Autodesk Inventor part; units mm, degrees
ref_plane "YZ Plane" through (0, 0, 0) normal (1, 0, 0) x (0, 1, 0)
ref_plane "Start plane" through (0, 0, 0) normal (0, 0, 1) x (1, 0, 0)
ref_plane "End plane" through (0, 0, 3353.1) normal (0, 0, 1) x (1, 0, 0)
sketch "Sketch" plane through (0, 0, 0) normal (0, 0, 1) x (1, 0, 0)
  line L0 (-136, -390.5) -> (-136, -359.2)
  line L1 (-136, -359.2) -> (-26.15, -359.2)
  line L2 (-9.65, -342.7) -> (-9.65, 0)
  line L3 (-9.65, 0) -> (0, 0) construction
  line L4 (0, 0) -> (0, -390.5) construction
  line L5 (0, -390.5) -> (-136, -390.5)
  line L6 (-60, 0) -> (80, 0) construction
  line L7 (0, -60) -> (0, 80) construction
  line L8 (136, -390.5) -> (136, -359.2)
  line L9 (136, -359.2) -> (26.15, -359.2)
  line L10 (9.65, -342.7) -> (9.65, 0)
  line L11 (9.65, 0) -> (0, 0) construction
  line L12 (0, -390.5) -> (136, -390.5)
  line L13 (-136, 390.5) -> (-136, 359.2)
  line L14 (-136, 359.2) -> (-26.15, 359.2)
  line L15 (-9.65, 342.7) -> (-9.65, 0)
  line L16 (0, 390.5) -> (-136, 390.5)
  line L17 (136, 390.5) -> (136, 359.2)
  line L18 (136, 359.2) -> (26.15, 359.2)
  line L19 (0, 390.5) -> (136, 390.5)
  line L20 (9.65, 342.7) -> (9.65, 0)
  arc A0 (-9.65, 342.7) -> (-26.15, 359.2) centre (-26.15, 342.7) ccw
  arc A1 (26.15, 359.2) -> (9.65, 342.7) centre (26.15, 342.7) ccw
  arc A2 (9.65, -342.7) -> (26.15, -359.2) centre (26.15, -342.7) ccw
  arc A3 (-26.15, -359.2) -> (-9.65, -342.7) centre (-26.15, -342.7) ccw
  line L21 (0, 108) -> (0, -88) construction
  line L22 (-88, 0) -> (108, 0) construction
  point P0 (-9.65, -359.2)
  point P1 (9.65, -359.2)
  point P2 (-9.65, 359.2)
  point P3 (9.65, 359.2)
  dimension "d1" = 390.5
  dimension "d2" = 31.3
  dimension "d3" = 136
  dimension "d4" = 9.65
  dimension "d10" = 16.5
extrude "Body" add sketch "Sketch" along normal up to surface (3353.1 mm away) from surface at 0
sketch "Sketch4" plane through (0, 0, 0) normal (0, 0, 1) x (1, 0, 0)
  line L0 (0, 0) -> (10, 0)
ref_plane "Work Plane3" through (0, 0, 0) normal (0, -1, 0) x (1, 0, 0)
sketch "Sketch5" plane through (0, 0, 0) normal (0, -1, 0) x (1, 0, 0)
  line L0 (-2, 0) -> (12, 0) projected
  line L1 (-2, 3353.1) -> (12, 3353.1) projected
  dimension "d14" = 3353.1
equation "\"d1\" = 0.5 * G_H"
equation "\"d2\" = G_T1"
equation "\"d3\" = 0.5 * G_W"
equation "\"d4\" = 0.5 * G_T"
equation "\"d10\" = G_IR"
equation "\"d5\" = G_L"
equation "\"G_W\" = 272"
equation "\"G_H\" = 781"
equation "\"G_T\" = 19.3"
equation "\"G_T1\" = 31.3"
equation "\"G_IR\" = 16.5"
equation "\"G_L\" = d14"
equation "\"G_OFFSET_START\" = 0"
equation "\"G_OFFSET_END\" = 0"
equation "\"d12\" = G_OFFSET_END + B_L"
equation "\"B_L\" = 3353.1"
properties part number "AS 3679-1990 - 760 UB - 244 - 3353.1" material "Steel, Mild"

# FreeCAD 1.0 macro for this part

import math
import FreeCAD as App
import Part
import Sketcher

doc = App.newDocument("Part")
body = doc.addObject("PartDesign::Body", "Body")

sketch1 = doc.addObject("Sketcher::SketchObject", "Sketch")
body.addObject(sketch1)
sketch1.AttachmentSupport = (doc.XY_Plane, [""])
sketch1.MapMode = "FlatFace"
sketch1.addGeometry([
    Part.LineSegment(App.Vector(-136, -359, 0), App.Vector(-136, -390, 0)),
    Part.LineSegment(App.Vector(-136, -390, 0), App.Vector(136, -390, 0)),
    Part.LineSegment(App.Vector(136, -390, 0), App.Vector(136, -359, 0)),
    Part.LineSegment(App.Vector(136, -359, 0), App.Vector(26, -359, 0)),
    Part.ArcOfCircle(Part.Circle(App.Vector(26, -343, 0), App.Vector(0, 0, 1), 16), math.radians(180), math.radians(270)),
    Part.LineSegment(App.Vector(10, -343, 0), App.Vector(10, 343, 0)),
    Part.ArcOfCircle(Part.Circle(App.Vector(26, 343, 0), App.Vector(0, 0, 1), 16), math.radians(90), math.radians(180)),
    Part.LineSegment(App.Vector(26, 359, 0), App.Vector(136, 359, 0)),
    Part.LineSegment(App.Vector(136, 359, 0), App.Vector(136, 390, 0)),
    Part.LineSegment(App.Vector(136, 390, 0), App.Vector(-136, 390, 0)),
    Part.LineSegment(App.Vector(-136, 390, 0), App.Vector(-136, 359, 0)),
    Part.LineSegment(App.Vector(-136, 359, 0), App.Vector(-26, 359, 0)),
    Part.ArcOfCircle(Part.Circle(App.Vector(-26, 343, 0), App.Vector(0, 0, 1), 16), math.radians(0), math.radians(90)),
    Part.LineSegment(App.Vector(-10, 343, 0), App.Vector(-10, -343, 0)),
    Part.ArcOfCircle(Part.Circle(App.Vector(-26, -343, 0), App.Vector(0, 0, 1), 16), math.radians(-90), math.radians(0)),
    Part.LineSegment(App.Vector(-26, -359, 0), App.Vector(-136, -359, 0)),
], False)
sketch1.addConstraint([
    Sketcher.Constraint("Coincident", 0, 2, 1, 1),
    Sketcher.Constraint("Coincident", 1, 2, 2, 1),
    Sketcher.Constraint("Coincident", 2, 2, 3, 1),
    Sketcher.Constraint("Tangent", 3, 2, 4, 2),
    Sketcher.Constraint("Tangent", 4, 1, 5, 1),
    Sketcher.Constraint("Tangent", 5, 2, 6, 2),
    Sketcher.Constraint("Tangent", 6, 1, 7, 1),
    Sketcher.Constraint("Coincident", 7, 2, 8, 1),
    Sketcher.Constraint("Coincident", 8, 2, 9, 1),
    Sketcher.Constraint("Coincident", 9, 2, 10, 1),
    Sketcher.Constraint("Coincident", 10, 2, 11, 1),
    Sketcher.Constraint("Tangent", 11, 2, 12, 2),
    Sketcher.Constraint("Tangent", 12, 1, 13, 1),
    Sketcher.Constraint("Tangent", 13, 2, 14, 2),
    Sketcher.Constraint("Tangent", 14, 1, 15, 1),
    Sketcher.Constraint("Coincident", 15, 2, 0, 1),
    Sketcher.Constraint("Vertical", 0),
    Sketcher.Constraint("Horizontal", 1),
    Sketcher.Constraint("Vertical", 2),
    Sketcher.Constraint("Horizontal", 3),
    Sketcher.Constraint("Vertical", 5),
    Sketcher.Constraint("Horizontal", 7),
    Sketcher.Constraint("Vertical", 8),
    Sketcher.Constraint("Horizontal", 9),
    Sketcher.Constraint("Vertical", 10),
    Sketcher.Constraint("Horizontal", 11),
    Sketcher.Constraint("Vertical", 13),
    Sketcher.Constraint("Horizontal", 15),
    Sketcher.Constraint("Equal", 4, 6),
    Sketcher.Constraint("Equal", 6, 12),
    Sketcher.Constraint("Equal", 12, 14),
    Sketcher.Constraint("Symmetric", 4, 3, 12, 3, -1, 1),
    Sketcher.Constraint("Symmetric", 0, 2, 8, 2, -1, 1),
    Sketcher.Constraint("Symmetric", 7, 2, 10, 2, -2),
    Sketcher.Constraint("Symmetric", 2, 2, 15, 2, -2),
    Sketcher.Constraint("Radius", 4, 16.5),
    Sketcher.Constraint("DistanceY", 0, 2, 0, 1, 31.3),
    Sketcher.Constraint("DistanceX", 0, 2, -1, 1, 136.0),
    Sketcher.Constraint("DistanceY", 0, 2, -1, 1, 390.5),
    Sketcher.Constraint("DistanceX", -1, 1, 4, 1, 9.65),
])
pad1 = doc.addObject("PartDesign::Pad", "Pad")
body.addObject(pad1)
pad1.Profile = sketch1
pad1.Length = 3353.1

doc.recompute()
